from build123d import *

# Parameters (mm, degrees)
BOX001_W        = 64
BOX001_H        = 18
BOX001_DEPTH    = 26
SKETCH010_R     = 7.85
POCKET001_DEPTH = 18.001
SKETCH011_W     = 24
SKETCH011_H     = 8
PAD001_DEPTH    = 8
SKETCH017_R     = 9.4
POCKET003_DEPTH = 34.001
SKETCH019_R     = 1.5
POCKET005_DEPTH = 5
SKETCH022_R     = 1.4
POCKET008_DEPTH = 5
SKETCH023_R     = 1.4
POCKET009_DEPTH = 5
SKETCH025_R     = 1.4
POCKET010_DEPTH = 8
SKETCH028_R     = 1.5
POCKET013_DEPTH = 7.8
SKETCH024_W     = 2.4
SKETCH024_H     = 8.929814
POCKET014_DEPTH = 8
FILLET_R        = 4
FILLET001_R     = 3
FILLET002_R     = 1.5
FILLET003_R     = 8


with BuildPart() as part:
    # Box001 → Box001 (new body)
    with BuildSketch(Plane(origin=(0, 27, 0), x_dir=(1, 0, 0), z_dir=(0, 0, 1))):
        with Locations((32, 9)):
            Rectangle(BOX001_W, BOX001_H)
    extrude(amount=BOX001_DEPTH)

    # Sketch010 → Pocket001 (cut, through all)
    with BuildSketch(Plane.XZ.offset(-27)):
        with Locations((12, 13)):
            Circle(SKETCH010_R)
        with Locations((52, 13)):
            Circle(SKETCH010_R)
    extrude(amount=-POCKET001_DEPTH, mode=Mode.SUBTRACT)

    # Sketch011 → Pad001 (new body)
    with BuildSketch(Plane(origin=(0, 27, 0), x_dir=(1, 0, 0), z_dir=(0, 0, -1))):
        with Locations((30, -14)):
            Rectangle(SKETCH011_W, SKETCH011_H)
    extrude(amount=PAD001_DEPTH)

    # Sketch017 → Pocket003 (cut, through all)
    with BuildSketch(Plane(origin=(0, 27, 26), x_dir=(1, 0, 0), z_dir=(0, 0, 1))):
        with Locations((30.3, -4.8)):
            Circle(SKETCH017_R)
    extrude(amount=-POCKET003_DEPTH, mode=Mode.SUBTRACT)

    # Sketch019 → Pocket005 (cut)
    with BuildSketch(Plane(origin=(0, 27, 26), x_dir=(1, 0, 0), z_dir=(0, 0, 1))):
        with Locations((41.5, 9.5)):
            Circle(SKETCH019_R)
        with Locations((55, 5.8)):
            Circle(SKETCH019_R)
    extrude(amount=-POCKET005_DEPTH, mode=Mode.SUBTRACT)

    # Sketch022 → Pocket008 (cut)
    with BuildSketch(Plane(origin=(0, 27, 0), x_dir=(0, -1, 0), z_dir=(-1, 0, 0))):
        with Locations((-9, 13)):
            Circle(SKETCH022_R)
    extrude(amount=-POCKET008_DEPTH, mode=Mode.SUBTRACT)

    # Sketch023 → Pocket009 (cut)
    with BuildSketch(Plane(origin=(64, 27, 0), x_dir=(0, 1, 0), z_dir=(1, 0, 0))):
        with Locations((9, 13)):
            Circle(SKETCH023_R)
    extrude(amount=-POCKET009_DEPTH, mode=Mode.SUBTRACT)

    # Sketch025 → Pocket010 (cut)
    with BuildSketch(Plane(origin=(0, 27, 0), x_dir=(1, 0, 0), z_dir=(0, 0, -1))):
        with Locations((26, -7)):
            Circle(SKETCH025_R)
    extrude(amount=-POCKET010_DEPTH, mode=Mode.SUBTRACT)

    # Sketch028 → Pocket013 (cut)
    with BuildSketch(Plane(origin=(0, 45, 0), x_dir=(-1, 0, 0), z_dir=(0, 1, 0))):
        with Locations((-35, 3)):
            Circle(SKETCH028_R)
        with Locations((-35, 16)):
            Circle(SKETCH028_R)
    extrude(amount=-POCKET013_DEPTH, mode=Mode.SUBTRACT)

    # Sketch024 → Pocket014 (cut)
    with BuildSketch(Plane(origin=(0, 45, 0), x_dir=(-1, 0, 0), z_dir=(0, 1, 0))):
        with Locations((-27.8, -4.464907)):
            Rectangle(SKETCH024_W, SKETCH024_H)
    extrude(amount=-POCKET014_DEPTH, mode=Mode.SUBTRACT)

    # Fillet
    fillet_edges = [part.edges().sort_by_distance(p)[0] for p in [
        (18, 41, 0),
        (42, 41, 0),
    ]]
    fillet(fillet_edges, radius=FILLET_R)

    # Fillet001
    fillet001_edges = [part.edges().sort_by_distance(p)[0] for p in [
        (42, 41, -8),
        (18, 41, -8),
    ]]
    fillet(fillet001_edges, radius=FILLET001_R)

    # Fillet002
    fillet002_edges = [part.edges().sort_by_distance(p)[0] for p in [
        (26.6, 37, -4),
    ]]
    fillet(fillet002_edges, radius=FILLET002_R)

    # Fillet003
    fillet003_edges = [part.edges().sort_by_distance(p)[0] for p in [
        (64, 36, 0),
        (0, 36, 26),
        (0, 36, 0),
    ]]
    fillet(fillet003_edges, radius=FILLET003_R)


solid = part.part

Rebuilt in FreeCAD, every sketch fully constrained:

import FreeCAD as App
import Part
import Sketcher
from FreeCAD import Vector
Q = App.Units.Quantity


def edges_at(feature, points):
    """Names of the edges that pass closest to the given points."""
    edges = feature.Shape.Edges
    near = lambda p: min(range(len(edges)), key=lambda i: edges[i].distToShape(Part.Vertex(*p))[0])
    return sorted({f"Edge{near(p) + 1}" for p in points})


def add_polygon(sketch, points):
    """Adds a closed chain of lines whose ends are joined by coincident constraints."""
    first, n = sketch.GeometryCount, len(points)
    for a, b in zip(points, points[1:] + points[:1]):
        sketch.addGeometry(Part.LineSegment(App.Vector(*a, 0), App.Vector(*b, 0)), False)
    for i in range(n):
        sketch.addConstraint(Sketcher.Constraint("Coincident", first + i, 2, first + (i + 1) % n, 1))

doc = App.newDocument("Part")
params = doc.addObject("Spreadsheet::Sheet", "Params")
for row, (alias, value) in enumerate([
    ("sketch1_width", "64 mm"),
    ("sketch1_height", "18 mm"),
    ("pad1_length", "26 mm"),
    ("sketch2_diameter", "15.7 mm"),
    ("sketch3_width", "24 mm"),
    ("sketch3_height", "8 mm"),
    ("pad2_length", "8 mm"),
    ("sketch4_diameter", "18.8 mm"),
    ("sketch5_diameter", "3 mm"),
    ("pocket3_length", "5 mm"),
    ("sketch6_diameter", "2.8 mm"),
    ("pocket4_length", "5 mm"),
    ("sketch7_diameter", "2.8 mm"),
    ("pocket5_length", "5 mm"),
    ("sketch8_diameter", "2.8 mm"),
    ("pocket6_length", "8 mm"),
    ("sketch9_diameter", "3 mm"),
    ("pocket7_length", "7.8 mm"),
    ("sketch10_width", "2.4 mm"),
    ("pocket8_length", "8 mm"),
    ("fillet_radius", "4 mm"),
    ("fillet2_radius", "3 mm"),
    ("fillet3_radius", "1.5 mm"),
    ("fillet4_radius", "8 mm"),
], start=1):
    params.set(f"A{row}", alias)
    params.set(f"B{row}", "=" + value)
    params.setAlias(f"B{row}", alias)

body = doc.addObject("PartDesign::Body", "Body")

# Sketch on XY plane
sketch1 = body.newObject("Sketcher::SketchObject", "Sketch")
sketch1.AttachmentSupport = (doc.getObject("XY_Plane"), [""])
sketch1.MapMode = "FlatFace"
add_polygon(sketch1, [(0, 45), (0, 27), (64, 27), (64, 45)])  # lines 0-3
sketch1.addConstraint(Sketcher.Constraint("Vertical", 0))
sketch1.addConstraint(Sketcher.Constraint("Horizontal", 1))
sketch1.addConstraint(Sketcher.Constraint("Vertical", 2))
sketch1.addConstraint(Sketcher.Constraint("Horizontal", 3))
sketch1.addConstraint(Sketcher.Constraint("PointOnObject", 0, 2, -2))
sketch1.addConstraint(Sketcher.Constraint("DistanceX", 1, 1, 1, 2, Q("64 mm")))
sketch1.addConstraint(Sketcher.Constraint("DistanceY", 0, 2, 0, 1, Q("18 mm")))
sketch1.addConstraint(Sketcher.Constraint("DistanceY", -1, 1, 0, 2, Q("27 mm")))
sketch1.setExpression("Constraints[9]", "Params.sketch1_width")
sketch1.setExpression("Constraints[10]", "Params.sketch1_height")
pad1 = body.newObject("PartDesign::Pad", "Pad")
pad1.Profile = sketch1
pad1.setExpression("Length", "Params.pad1_length")

# Sketch on XZ plane
sketch2 = body.newObject("Sketcher::SketchObject", "Sketch001")
sketch2.AttachmentSupport = (doc.getObject("XZ_Plane"), [""])
sketch2.MapMode = "FlatFace"
sketch2.AttachmentOffset = App.Placement(Vector(0, 0, -27), App.Rotation())
sketch2.addGeometry(Part.Circle(Vector(12, 13, 0), Vector(0, 0, 1), 8), False)
sketch2.addGeometry(Part.Circle(Vector(52, 13, 0), Vector(0, 0, 1), 8), False)
sketch2.addConstraint(Sketcher.Constraint("Equal", 0, 1))
sketch2.addConstraint(Sketcher.Constraint("Horizontal", 0, 3, 1, 3))
sketch2.addConstraint(Sketcher.Constraint("Diameter", 0, Q("15.7 mm")))
sketch2.addConstraint(Sketcher.Constraint("DistanceX", -1, 1, 0, 3, Q("12 mm")))
sketch2.addConstraint(Sketcher.Constraint("DistanceY", -1, 1, 0, 3, Q("13 mm")))
sketch2.addConstraint(Sketcher.Constraint("DistanceX", -1, 1, 1, 3, Q("52 mm")))
sketch2.setExpression("Constraints[2]", "Params.sketch2_diameter")
pocket1 = body.newObject("PartDesign::Pocket", "Pocket")
pocket1.Profile = sketch2
pocket1.Type = "ThroughAll"

# Sketch on XY plane
sketch3 = body.newObject("Sketcher::SketchObject", "Sketch002")
sketch3.AttachmentSupport = (doc.getObject("XY_Plane"), [""])
sketch3.MapMode = "FlatFace"
add_polygon(sketch3, [(18, 37), (18, 45), (42, 45), (42, 37)])  # lines 0-3
sketch3.addConstraint(Sketcher.Constraint("Vertical", 0))
sketch3.addConstraint(Sketcher.Constraint("Horizontal", 1))
sketch3.addConstraint(Sketcher.Constraint("Vertical", 2))
sketch3.addConstraint(Sketcher.Constraint("Horizontal", 3))
sketch3.addConstraint(Sketcher.Constraint("DistanceX", 1, 1, 1, 2, Q("24 mm")))
sketch3.addConstraint(Sketcher.Constraint("DistanceY", 0, 1, 0, 2, Q("8 mm")))
sketch3.addConstraint(Sketcher.Constraint("DistanceX", -1, 1, 0, 2, Q("18 mm")))
sketch3.addConstraint(Sketcher.Constraint("DistanceY", -1, 1, 0, 2, Q("45 mm")))
sketch3.setExpression("Constraints[8]", "Params.sketch3_width")
sketch3.setExpression("Constraints[9]", "Params.sketch3_height")
pad2 = body.newObject("PartDesign::Pad", "Pad001")
pad2.Profile = sketch3
pad2.setExpression("Length", "Params.pad2_length")
pad2.Reversed = True

# Sketch on XY plane
sketch4 = body.newObject("Sketcher::SketchObject", "Sketch003")
sketch4.AttachmentSupport = (doc.getObject("XY_Plane"), [""])
sketch4.MapMode = "FlatFace"
sketch4.AttachmentOffset = App.Placement(Vector(0, 0, 26), App.Rotation())
sketch4.addGeometry(Part.Circle(Vector(30, 22, 0), Vector(0, 0, 1), 9), False)
sketch4.addConstraint(Sketcher.Constraint("Diameter", 0, Q("18.8 mm")))
sketch4.addConstraint(Sketcher.Constraint("DistanceX", -1, 1, 0, 3, Q("30.3 mm")))
sketch4.addConstraint(Sketcher.Constraint("DistanceY", -1, 1, 0, 3, Q("22.2 mm")))
sketch4.setExpression("Constraints[0]", "Params.sketch4_diameter")
pocket2 = body.newObject("PartDesign::Pocket", "Pocket001")
pocket2.Profile = sketch4
pocket2.Type = "ThroughAll"

# Sketch on XY plane
sketch5 = body.newObject("Sketcher::SketchObject", "Sketch004")
sketch5.AttachmentSupport = (doc.getObject("XY_Plane"), [""])
sketch5.MapMode = "FlatFace"
sketch5.AttachmentOffset = App.Placement(Vector(0, 0, 26), App.Rotation())
sketch5.addGeometry(Part.Circle(Vector(41.5, 36.5, 0), Vector(0, 0, 1), 1.5), False)
sketch5.addGeometry(Part.Circle(Vector(55, 32.8, 0), Vector(0, 0, 1), 1.5), False)
sketch5.addConstraint(Sketcher.Constraint("Equal", 0, 1))
sketch5.addConstraint(Sketcher.Constraint("Diameter", 0, Q("3 mm")))
sketch5.addConstraint(Sketcher.Constraint("DistanceX", -1, 1, 1, 3, Q("55 mm")))
sketch5.addConstraint(Sketcher.Constraint("DistanceX", -1, 1, 0, 3, Q("41.5 mm")))
sketch5.addConstraint(Sketcher.Constraint("DistanceY", -1, 1, 0, 3, Q("36.5 mm")))
sketch5.addConstraint(Sketcher.Constraint("DistanceY", -1, 1, 1, 3, Q("32.8 mm")))
sketch5.setExpression("Constraints[1]", "Params.sketch5_diameter")
pocket3 = body.newObject("PartDesign::Pocket", "Pocket002")
pocket3.Profile = sketch5
pocket3.setExpression("Length", "Params.pocket3_length")

# Sketch on YZ plane
sketch6 = body.newObject("Sketcher::SketchObject", "Sketch005")
sketch6.AttachmentSupport = (doc.getObject("YZ_Plane"), [""])
sketch6.MapMode = "FlatFace"
sketch6.addGeometry(Part.Circle(Vector(36, 13, 0), Vector(0, 0, 1), 1.4), False)
sketch6.addConstraint(Sketcher.Constraint("Diameter", 0, Q("2.8 mm")))
sketch6.addConstraint(Sketcher.Constraint("DistanceX", -1, 1, 0, 3, Q("36 mm")))
sketch6.addConstraint(Sketcher.Constraint("DistanceY", -1, 1, 0, 3, Q("13 mm")))
sketch6.setExpression("Constraints[0]", "Params.sketch6_diameter")
pocket4 = body.newObject("PartDesign::Pocket", "Pocket003")
pocket4.Profile = sketch6
pocket4.setExpression("Length", "Params.pocket4_length")
pocket4.Reversed = True

# Sketch on YZ plane
sketch7 = body.newObject("Sketcher::SketchObject", "Sketch006")
sketch7.AttachmentSupport = (doc.getObject("YZ_Plane"), [""])
sketch7.MapMode = "FlatFace"
sketch7.AttachmentOffset = App.Placement(Vector(0, 0, 64), App.Rotation())
sketch7.addGeometry(Part.Circle(Vector(36, 13, 0), Vector(0, 0, 1), 1.4), False)
sketch7.addConstraint(Sketcher.Constraint("Diameter", 0, Q("2.8 mm")))
sketch7.addConstraint(Sketcher.Constraint("DistanceX", -1, 1, 0, 3, Q("36 mm")))
sketch7.addConstraint(Sketcher.Constraint("DistanceY", -1, 1, 0, 3, Q("13 mm")))
sketch7.setExpression("Constraints[0]", "Params.sketch7_diameter")
pocket5 = body.newObject("PartDesign::Pocket", "Pocket004")
pocket5.Profile = sketch7
pocket5.setExpression("Length", "Params.pocket5_length")

# Sketch on XY plane
sketch8 = body.newObject("Sketcher::SketchObject", "Sketch007")
sketch8.AttachmentSupport = (doc.getObject("XY_Plane"), [""])
sketch8.MapMode = "FlatFace"
sketch8.addGeometry(Part.Circle(Vector(26, 34, 0), Vector(0, 0, 1), 1.4), False)
sketch8.addConstraint(Sketcher.Constraint("Diameter", 0, Q("2.8 mm")))
sketch8.addConstraint(Sketcher.Constraint("DistanceX", -1, 1, 0, 3, Q("26 mm")))
sketch8.addConstraint(Sketcher.Constraint("DistanceY", -1, 1, 0, 3, Q("34 mm")))
sketch8.setExpression("Constraints[0]", "Params.sketch8_diameter")
pocket6 = body.newObject("PartDesign::Pocket", "Pocket005")
pocket6.Profile = sketch8
pocket6.setExpression("Length", "Params.pocket6_length")
pocket6.Reversed = True

# Sketch on XZ plane
sketch9 = body.newObject("Sketcher::SketchObject", "Sketch008")
sketch9.AttachmentSupport = (doc.getObject("XZ_Plane"), [""])
sketch9.MapMode = "FlatFace"
sketch9.AttachmentOffset = App.Placement(Vector(0, 0, -45), App.Rotation())
sketch9.addGeometry(Part.Circle(Vector(35, 3, 0), Vector(0, 0, 1), 1.5), False)
sketch9.addGeometry(Part.Circle(Vector(35, 16, 0), Vector(0, 0, 1), 1.5), False)
sketch9.addConstraint(Sketcher.Constraint("Equal", 0, 1))
sketch9.addConstraint(Sketcher.Constraint("Vertical", 0, 3, 1, 3))
sketch9.addConstraint(Sketcher.Constraint("Diameter", 0, Q("3 mm")))
sketch9.addConstraint(Sketcher.Constraint("DistanceX", -1, 1, 0, 3, Q("35 mm")))
sketch9.addConstraint(Sketcher.Constraint("DistanceY", -1, 1, 0, 3, Q("3 mm")))
sketch9.addConstraint(Sketcher.Constraint("DistanceY", -1, 1, 1, 3, Q("16 mm")))
sketch9.setExpression("Constraints[2]", "Params.sketch9_diameter")
pocket7 = body.newObject("PartDesign::Pocket", "Pocket006")
pocket7.Profile = sketch9
pocket7.setExpression("Length", "Params.pocket7_length")
pocket7.Reversed = True

# Sketch on XZ plane
sketch10 = body.newObject("Sketcher::SketchObject", "Sketch009")
sketch10.AttachmentSupport = (doc.getObject("XZ_Plane"), [""])
sketch10.MapMode = "FlatFace"
sketch10.AttachmentOffset = App.Placement(Vector(0, 0, -45), App.Rotation())
add_polygon(sketch10, [(29, 0), (29, -8.9), (26.6, -8.9), (26.6, 0)])  # lines 0-3
sketch10.addConstraint(Sketcher.Constraint("Vertical", 0))
sketch10.addConstraint(Sketcher.Constraint("Horizontal", 1))
sketch10.addConstraint(Sketcher.Constraint("Vertical", 2))
sketch10.addConstraint(Sketcher.Constraint("Horizontal", 3))
sketch10.addConstraint(Sketcher.Constraint("PointOnObject", 2, 2, -1))
sketch10.addConstraint(Sketcher.Constraint("DistanceX", 1, 2, 1, 1, Q("2.4 mm")))
sketch10.addConstraint(Sketcher.Constraint("DistanceX", -1, 1, 0, 2, Q("29 mm")))
sketch10.addConstraint(Sketcher.Constraint("DistanceY", 0, 2, 0, 1, Q("8.929814 mm")))
sketch10.setExpression("Constraints[9]", "Params.sketch10_width")
pocket8 = body.newObject("PartDesign::Pocket", "Pocket007")
pocket8.Profile = sketch10
pocket8.setExpression("Length", "Params.pocket8_length")
pocket8.Reversed = True
doc.recompute()

fillet = body.newObject("PartDesign::Fillet", "Fillet")
fillet.Base = (pocket8, edges_at(pocket8, [(18, 41, 0), (42, 41, 0)]))
fillet.setExpression("Radius", "Params.fillet_radius")
doc.recompute()

fillet2 = body.newObject("PartDesign::Fillet", "Fillet001")
fillet2.Base = (fillet, edges_at(fillet, [(42, 41, -8), (18, 41, -8)]))
fillet2.setExpression("Radius", "Params.fillet2_radius")
doc.recompute()

fillet3 = body.newObject("PartDesign::Fillet", "Fillet002")
fillet3.Base = (fillet2, edges_at(fillet2, [(26.6, 37, -4)]))
fillet3.setExpression("Radius", "Params.fillet3_radius")
doc.recompute()

fillet4 = body.newObject("PartDesign::Fillet", "Fillet003")
fillet4.Base = (fillet3, edges_at(fillet3, [(64, 36, 0), (0, 36, 26), (0, 36, 0)]))
fillet4.setExpression("Radius", "Params.fillet4_radius")

doc.recompute()
